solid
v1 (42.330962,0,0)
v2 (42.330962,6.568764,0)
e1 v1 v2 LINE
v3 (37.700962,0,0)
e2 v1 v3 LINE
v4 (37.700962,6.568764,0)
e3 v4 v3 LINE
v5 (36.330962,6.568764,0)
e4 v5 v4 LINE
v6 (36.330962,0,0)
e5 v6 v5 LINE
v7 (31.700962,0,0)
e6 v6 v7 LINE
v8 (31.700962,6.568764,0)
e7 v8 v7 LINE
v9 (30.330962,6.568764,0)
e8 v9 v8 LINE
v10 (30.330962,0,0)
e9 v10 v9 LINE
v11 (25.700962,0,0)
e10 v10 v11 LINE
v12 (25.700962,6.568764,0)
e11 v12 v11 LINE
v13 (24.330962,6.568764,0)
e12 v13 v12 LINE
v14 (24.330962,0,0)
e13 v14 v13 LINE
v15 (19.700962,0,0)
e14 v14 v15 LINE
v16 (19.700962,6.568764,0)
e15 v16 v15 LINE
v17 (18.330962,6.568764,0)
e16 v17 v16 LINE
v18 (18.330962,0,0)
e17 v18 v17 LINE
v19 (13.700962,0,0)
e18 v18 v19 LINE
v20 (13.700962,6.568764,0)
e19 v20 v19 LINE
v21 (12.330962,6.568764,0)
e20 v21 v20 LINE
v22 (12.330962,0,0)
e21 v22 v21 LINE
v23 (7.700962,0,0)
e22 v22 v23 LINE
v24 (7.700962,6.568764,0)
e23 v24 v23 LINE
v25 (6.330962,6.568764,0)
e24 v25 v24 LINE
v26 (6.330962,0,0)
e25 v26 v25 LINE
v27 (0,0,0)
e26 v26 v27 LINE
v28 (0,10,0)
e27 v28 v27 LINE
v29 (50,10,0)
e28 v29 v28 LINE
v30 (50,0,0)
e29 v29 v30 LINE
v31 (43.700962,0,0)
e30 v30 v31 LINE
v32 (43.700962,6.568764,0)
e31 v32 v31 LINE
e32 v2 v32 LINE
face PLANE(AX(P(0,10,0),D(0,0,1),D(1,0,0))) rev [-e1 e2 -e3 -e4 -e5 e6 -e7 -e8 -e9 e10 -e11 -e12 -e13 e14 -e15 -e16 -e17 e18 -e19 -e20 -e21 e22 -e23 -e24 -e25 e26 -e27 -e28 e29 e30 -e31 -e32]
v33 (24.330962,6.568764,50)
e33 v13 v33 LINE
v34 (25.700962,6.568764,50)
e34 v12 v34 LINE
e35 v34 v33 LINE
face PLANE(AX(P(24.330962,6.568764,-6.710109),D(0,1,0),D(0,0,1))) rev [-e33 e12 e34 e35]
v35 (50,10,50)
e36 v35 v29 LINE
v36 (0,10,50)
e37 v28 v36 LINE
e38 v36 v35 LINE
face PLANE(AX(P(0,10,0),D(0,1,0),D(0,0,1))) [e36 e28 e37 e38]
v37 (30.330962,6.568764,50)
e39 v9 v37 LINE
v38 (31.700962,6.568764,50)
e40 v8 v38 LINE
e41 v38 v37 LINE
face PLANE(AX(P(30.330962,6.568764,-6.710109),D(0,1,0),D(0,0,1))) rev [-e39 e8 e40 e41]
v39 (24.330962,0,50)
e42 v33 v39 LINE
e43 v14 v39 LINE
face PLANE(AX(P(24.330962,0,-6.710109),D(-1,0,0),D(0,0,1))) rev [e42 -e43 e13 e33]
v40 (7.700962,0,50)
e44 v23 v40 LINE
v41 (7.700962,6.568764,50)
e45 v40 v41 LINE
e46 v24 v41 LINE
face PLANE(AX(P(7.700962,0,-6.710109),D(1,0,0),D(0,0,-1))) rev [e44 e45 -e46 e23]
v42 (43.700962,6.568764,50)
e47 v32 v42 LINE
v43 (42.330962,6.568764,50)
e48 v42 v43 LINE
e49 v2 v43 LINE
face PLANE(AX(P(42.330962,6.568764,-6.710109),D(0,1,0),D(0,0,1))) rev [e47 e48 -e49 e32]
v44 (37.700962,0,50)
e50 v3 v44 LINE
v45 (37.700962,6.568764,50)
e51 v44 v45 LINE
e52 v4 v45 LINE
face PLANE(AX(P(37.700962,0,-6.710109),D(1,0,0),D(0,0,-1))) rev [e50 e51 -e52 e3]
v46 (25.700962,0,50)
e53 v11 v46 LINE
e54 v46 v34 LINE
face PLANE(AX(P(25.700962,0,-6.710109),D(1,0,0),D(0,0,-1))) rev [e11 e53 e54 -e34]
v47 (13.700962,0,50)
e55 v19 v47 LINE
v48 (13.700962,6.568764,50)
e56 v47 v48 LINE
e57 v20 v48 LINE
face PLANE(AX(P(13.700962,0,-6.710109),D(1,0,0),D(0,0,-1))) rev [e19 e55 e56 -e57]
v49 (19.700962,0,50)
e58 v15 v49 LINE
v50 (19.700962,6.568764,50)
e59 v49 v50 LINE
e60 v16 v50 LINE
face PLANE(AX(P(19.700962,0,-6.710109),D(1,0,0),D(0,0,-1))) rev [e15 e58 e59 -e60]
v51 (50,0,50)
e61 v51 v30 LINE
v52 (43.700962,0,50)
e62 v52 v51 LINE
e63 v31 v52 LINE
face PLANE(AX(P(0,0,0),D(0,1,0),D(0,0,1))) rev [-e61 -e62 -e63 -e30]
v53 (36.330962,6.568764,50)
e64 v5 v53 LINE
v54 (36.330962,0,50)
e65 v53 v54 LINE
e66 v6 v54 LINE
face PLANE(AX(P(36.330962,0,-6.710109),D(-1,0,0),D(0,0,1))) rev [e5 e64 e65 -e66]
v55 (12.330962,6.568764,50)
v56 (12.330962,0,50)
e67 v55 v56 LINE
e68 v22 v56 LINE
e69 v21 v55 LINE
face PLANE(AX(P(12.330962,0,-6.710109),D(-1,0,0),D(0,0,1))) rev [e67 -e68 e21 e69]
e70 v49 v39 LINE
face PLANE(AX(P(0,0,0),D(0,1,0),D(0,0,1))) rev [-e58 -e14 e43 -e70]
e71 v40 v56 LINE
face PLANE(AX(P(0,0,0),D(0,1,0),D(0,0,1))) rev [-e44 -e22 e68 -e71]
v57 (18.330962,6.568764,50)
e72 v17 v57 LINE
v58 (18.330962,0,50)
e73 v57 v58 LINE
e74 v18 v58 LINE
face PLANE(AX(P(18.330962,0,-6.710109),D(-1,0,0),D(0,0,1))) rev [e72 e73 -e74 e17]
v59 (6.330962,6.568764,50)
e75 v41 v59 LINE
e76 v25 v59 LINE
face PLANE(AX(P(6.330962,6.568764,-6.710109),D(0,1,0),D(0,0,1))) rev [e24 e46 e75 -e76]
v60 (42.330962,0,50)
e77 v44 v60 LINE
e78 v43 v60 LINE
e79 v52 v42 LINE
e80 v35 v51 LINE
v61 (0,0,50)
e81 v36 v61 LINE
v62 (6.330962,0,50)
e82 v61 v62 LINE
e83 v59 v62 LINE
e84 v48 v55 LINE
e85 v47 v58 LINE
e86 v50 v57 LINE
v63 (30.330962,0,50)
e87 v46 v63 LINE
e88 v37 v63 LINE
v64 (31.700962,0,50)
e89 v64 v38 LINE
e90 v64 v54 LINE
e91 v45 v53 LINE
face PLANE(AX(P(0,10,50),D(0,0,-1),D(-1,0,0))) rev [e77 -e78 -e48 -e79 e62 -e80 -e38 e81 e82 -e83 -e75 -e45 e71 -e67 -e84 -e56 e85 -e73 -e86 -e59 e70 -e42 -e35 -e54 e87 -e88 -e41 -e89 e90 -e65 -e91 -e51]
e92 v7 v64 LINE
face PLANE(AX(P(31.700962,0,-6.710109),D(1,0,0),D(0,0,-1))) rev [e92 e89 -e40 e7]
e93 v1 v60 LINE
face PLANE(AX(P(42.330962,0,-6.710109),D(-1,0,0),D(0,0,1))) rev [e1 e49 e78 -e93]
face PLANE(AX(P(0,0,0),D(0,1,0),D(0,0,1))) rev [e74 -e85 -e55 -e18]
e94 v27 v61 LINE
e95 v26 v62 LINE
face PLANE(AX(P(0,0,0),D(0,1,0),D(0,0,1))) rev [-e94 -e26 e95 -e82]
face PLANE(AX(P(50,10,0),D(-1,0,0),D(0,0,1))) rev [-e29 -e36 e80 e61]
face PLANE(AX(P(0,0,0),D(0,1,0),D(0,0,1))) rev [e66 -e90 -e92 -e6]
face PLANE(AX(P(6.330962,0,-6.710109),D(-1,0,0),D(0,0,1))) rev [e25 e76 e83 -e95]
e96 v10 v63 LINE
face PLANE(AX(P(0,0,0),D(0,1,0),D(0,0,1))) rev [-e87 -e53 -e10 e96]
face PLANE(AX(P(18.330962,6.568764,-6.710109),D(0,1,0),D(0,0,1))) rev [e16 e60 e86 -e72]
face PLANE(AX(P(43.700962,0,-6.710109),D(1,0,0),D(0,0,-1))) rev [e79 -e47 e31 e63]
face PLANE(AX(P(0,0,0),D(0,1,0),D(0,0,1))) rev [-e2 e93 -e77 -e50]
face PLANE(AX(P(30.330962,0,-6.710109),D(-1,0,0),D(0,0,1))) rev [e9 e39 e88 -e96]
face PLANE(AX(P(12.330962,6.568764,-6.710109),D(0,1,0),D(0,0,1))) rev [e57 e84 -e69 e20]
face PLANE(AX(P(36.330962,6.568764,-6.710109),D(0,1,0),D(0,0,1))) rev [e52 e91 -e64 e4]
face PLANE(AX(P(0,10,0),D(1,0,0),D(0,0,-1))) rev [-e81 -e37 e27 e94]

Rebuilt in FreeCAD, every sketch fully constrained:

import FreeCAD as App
import Part
import Sketcher

V = App.Vector

doc = App.newDocument("Part")
params = doc.addObject("Spreadsheet::Sheet", "Params")
for row, (alias, value) in enumerate([
    ("sketch1_width", "50 mm"),
    ("pad1_length", "10 mm"),
    ("sketch2_width", "1.37 mm"),
    ("pocket1_length", "50 mm"),
    ("linearpattern_pitch", "6 mm"),
], start=1):
    params.set(f"A{row}", alias)
    params.set(f"B{row}", "=" + value)
    params.setAlias(f"B{row}", alias)

body = doc.addObject("PartDesign::Body", "Body")

# Sketch on XZ plane
sketch1 = body.newObject("Sketcher::SketchObject", "Sketch")
sketch1.AttachmentSupport = (doc.getObject("XZ_Plane"), [""])
sketch1.MapMode = "FlatFace"
sketch1.addGeometry([
    Part.LineSegment(V(0, 0, 0), V(0, 50, 0)),
    Part.LineSegment(V(0, 50, 0), V(50, 50, 0)),
    Part.LineSegment(V(50, 50, 0), V(50, 0, 0)),
    Part.LineSegment(V(50, 0, 0), V(0, 0, 0)),
], False)
sketch1.addConstraint([
    Sketcher.Constraint("Coincident", 0, 2, 1, 1),
    Sketcher.Constraint("Coincident", 1, 2, 2, 1),
    Sketcher.Constraint("Coincident", 2, 2, 3, 1),
    Sketcher.Constraint("Coincident", 3, 2, 0, 1),
    Sketcher.Constraint("Vertical", 0),
    Sketcher.Constraint("Horizontal", 1),
    Sketcher.Constraint("Vertical", 2),
    Sketcher.Constraint("Horizontal", 3),
    Sketcher.Constraint("Coincident", 3, 2, -1, 1),
    Sketcher.Constraint("Equal", 3, 0),
    Sketcher.Constraint("DistanceX", 1, 1, 1, 2, 50.0),
])
sketch1.setExpression("Constraints[10]", "Params.sketch1_width")
pad1 = body.newObject("PartDesign::Pad", "Pad")
pad1.Profile = sketch1
pad1.setExpression("Length", "Params.pad1_length")
pad1.Reversed = True

# Sketch on XY plane
sketch2 = body.newObject("Sketcher::SketchObject", "Sketch001")
sketch2.AttachmentSupport = (doc.getObject("XY_Plane"), [""])
sketch2.MapMode = "FlatFace"
sketch2.AttachmentOffset = App.Placement(V(0, 0, 50), App.Rotation())
sketch2.addGeometry([
    Part.LineSegment(V(6.3, 6.6, 0), V(6.3, 0, 0)),
    Part.LineSegment(V(6.3, 0, 0), V(7.7, 0, 0)),
    Part.LineSegment(V(7.7, 0, 0), V(7.7, 6.6, 0)),
    Part.LineSegment(V(7.7, 6.6, 0), V(6.3, 6.6, 0)),
], False)
sketch2.addConstraint([
    Sketcher.Constraint("Coincident", 0, 2, 1, 1),
    Sketcher.Constraint("Coincident", 1, 2, 2, 1),
    Sketcher.Constraint("Coincident", 2, 2, 3, 1),
    Sketcher.Constraint("Coincident", 3, 2, 0, 1),
    Sketcher.Constraint("Vertical", 0),
    Sketcher.Constraint("Horizontal", 1),
    Sketcher.Constraint("Vertical", 2),
    Sketcher.Constraint("Horizontal", 3),
    Sketcher.Constraint("PointOnObject", 0, 2, -1),
    Sketcher.Constraint("DistanceX", 1, 1, 1, 2, 1.37),
    Sketcher.Constraint("DistanceY", 0, 2, 0, 1, 6.568764),
    Sketcher.Constraint("DistanceX", -1, 1, 0, 2, 6.330962),
])
sketch2.setExpression("Constraints[9]", "Params.sketch2_width")
pocket1 = body.newObject("PartDesign::Pocket", "Pocket")
pocket1.Profile = sketch2
pocket1.setExpression("Length", "Params.pocket1_length")
doc.recompute()

linearpattern = body.newObject("PartDesign::LinearPattern", "LinearPattern")
linearpattern.Originals = [pocket1]
linearpattern.Direction = (doc.getObject("X_Axis"), [""])
linearpattern.Mode = "offset"
linearpattern.setExpression("Offset", "Params.linearpattern_pitch")
linearpattern.Occurrences = 7
body.Tip = linearpattern

doc.recompute()
